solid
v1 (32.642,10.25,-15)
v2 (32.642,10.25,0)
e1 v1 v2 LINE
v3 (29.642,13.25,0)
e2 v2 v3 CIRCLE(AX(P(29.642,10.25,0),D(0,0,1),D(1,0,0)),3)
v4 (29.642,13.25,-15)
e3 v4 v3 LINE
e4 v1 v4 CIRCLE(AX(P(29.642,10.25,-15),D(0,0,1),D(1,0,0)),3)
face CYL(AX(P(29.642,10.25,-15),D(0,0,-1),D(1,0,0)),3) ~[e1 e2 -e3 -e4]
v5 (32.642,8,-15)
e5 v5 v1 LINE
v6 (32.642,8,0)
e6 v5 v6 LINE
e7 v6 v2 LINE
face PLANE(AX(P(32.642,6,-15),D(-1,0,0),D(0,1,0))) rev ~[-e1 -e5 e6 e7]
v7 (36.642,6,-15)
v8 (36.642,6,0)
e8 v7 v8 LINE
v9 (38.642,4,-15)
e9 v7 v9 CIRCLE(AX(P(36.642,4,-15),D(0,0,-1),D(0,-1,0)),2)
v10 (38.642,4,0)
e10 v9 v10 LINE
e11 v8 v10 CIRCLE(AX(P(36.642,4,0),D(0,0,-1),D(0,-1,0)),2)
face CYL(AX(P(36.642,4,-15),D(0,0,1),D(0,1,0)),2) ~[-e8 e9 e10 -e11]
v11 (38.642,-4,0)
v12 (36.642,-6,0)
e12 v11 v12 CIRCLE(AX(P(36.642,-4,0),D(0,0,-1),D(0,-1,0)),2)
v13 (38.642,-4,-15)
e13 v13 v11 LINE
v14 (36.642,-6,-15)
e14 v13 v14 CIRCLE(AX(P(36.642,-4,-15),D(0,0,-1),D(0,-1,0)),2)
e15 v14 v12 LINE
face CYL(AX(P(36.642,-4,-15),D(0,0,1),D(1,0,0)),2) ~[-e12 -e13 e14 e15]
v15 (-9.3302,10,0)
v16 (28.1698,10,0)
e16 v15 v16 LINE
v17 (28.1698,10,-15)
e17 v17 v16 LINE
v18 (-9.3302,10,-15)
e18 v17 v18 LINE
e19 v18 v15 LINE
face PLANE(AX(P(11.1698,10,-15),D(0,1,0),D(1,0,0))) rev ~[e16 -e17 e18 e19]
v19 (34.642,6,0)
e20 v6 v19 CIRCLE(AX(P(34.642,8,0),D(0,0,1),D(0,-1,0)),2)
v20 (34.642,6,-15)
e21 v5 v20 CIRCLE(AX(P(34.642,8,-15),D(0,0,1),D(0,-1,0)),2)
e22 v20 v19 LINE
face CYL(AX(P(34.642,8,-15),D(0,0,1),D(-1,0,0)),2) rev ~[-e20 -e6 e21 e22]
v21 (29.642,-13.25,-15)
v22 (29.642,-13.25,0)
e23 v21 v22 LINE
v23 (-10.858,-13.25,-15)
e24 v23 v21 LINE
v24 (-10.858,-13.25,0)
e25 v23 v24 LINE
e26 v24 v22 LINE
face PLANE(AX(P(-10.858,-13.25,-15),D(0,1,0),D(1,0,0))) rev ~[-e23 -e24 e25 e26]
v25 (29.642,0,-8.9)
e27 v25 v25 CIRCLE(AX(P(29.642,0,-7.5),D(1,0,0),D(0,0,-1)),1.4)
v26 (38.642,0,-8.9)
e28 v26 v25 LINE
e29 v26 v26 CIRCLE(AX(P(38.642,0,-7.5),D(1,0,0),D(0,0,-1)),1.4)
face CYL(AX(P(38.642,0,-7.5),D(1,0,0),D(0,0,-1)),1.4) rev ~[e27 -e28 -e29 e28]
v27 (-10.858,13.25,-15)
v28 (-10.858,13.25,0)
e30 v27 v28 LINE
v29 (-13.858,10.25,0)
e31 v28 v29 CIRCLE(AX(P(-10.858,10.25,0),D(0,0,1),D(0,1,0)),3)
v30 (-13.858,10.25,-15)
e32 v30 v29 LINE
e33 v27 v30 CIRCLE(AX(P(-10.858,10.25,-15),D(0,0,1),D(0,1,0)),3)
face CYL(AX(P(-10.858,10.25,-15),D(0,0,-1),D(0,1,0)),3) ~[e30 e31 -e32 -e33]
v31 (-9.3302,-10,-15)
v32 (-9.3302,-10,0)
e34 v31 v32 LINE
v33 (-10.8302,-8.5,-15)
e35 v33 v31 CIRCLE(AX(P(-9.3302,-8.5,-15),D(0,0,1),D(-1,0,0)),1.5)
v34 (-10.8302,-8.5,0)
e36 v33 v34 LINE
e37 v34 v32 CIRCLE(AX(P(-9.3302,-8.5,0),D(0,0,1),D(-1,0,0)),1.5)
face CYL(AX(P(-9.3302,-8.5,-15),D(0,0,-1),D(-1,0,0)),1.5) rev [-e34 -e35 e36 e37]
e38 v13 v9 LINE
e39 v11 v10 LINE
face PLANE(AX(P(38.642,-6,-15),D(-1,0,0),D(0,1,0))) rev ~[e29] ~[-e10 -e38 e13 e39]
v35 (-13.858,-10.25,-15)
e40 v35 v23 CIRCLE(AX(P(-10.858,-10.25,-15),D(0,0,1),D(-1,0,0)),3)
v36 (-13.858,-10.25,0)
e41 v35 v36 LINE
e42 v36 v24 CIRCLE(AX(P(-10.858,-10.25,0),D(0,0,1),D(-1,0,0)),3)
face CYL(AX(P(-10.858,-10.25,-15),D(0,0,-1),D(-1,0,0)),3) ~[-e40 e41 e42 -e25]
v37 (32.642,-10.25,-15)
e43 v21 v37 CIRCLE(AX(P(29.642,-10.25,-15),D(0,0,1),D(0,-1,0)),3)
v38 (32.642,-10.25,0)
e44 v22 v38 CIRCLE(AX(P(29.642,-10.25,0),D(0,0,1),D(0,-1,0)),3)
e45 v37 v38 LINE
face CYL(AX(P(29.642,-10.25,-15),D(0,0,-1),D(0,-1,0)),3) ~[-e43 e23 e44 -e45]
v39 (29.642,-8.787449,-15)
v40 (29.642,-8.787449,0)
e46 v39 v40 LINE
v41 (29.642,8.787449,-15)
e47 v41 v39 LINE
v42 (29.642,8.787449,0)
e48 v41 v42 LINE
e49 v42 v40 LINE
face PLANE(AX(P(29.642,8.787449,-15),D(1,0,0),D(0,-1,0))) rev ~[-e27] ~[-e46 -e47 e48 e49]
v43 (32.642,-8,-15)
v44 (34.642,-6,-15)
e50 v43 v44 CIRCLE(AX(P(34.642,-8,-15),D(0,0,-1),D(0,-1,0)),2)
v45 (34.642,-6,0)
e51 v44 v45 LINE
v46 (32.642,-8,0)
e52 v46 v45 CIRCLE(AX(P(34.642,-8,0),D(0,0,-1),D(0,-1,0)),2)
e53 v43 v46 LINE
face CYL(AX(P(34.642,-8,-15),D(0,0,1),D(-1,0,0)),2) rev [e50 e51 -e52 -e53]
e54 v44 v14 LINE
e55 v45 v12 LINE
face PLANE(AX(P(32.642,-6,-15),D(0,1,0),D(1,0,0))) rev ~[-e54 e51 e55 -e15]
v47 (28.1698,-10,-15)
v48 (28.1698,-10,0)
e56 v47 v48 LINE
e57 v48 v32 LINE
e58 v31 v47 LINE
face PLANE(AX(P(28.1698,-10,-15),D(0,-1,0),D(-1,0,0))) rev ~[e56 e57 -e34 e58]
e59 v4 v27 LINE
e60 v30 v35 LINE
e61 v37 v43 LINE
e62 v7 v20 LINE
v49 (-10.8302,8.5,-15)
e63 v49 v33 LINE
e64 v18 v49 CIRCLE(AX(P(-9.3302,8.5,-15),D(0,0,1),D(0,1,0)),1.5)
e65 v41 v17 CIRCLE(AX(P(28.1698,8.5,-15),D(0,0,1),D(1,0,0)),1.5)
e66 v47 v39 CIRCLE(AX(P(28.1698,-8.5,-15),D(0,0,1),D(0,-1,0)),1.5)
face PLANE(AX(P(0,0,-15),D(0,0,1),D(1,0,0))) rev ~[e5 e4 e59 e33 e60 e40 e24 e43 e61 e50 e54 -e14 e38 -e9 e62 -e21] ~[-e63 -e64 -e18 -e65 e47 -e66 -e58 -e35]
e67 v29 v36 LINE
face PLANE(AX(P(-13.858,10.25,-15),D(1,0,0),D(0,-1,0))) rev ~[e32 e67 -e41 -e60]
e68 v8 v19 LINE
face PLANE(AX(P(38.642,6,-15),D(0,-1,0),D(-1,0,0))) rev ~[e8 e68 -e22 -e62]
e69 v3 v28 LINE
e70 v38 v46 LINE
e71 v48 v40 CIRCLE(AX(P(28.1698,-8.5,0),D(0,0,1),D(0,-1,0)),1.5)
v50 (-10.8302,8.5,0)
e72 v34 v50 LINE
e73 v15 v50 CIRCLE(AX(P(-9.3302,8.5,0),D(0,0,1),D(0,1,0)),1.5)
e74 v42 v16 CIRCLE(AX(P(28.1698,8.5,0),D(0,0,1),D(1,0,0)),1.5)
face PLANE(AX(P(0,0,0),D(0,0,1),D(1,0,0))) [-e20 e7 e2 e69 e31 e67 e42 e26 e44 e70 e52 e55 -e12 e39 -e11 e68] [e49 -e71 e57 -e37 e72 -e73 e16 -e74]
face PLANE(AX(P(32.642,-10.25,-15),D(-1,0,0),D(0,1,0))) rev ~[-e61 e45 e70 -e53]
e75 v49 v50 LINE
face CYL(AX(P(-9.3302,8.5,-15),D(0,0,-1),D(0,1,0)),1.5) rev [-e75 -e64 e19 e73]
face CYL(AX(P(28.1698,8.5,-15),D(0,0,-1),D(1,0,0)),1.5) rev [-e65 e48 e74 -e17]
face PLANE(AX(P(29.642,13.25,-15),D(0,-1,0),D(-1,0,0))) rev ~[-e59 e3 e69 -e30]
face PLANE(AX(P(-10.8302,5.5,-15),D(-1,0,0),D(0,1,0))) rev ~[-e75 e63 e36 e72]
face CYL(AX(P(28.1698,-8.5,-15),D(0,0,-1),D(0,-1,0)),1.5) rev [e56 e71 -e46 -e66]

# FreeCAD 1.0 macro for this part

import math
import FreeCAD as App
import Part
import Sketcher
Q = App.Units.Quantity


def edges_at(feature, points):
    """Names of the edges that pass closest to the given points."""
    edges = feature.Shape.Edges
    near = lambda p: min(range(len(edges)), key=lambda i: edges[i].distToShape(Part.Vertex(*p))[0])
    return sorted({f"Edge{near(p) + 1}" for p in points})

doc = App.newDocument("Part")
body = doc.addObject("PartDesign::Body", "Body")

# Sketch on XY plane
sketch1 = body.newObject("Sketcher::SketchObject", "Sketch")
sketch1.AttachmentSupport = (doc.getObject("XY_Plane"), [""])
sketch1.MapMode = "FlatFace"
sketch1.AttachmentOffset = App.Placement(App.Vector(0, 0, -15), App.Rotation())
sketch1.addGeometry([
    Part.ArcOfCircle(Part.Circle(App.Vector(29.6, -10.2, 0), App.Vector(0, 0, 1), 3), math.radians(-90), math.radians(0)),  # 0
    Part.LineSegment(App.Vector(32.6, -10.2, 0), App.Vector(32.6, -6, 0)),  # 1
    Part.LineSegment(App.Vector(32.6, -6, 0), App.Vector(38.6, -6, 0)),  # 2
    Part.LineSegment(App.Vector(38.6, -6, 0), App.Vector(38.6, 6, 0)),  # 3
    Part.LineSegment(App.Vector(38.6, 6, 0), App.Vector(32.6, 6, 0)),  # 4
    Part.LineSegment(App.Vector(32.6, 6, 0), App.Vector(32.6, 10.2, 0)),  # 5
    Part.ArcOfCircle(Part.Circle(App.Vector(29.6, 10.2, 0), App.Vector(0, 0, 1), 3), math.radians(0), math.radians(90)),  # 6
    Part.LineSegment(App.Vector(29.6, 13.2, 0), App.Vector(-10.9, 13.2, 0)),  # 7
    Part.ArcOfCircle(Part.Circle(App.Vector(-10.9, 10.2, 0), App.Vector(0, 0, 1), 3), math.radians(90), math.radians(180)),  # 8
    Part.LineSegment(App.Vector(-13.9, 10.2, 0), App.Vector(-13.9, -10.2, 0)),  # 9
    Part.ArcOfCircle(Part.Circle(App.Vector(-10.9, -10.2, 0), App.Vector(0, 0, 1), 3), math.radians(180), math.radians(270)),  # 10
    Part.LineSegment(App.Vector(-10.9, -13.2, 0), App.Vector(29.6, -13.2, 0)),  # 11
    Part.LineSegment(App.Vector(29.6, 8.8, 0), App.Vector(29.6, -8.8, 0)),  # 12
    Part.ArcOfCircle(Part.Circle(App.Vector(28.2, -8.5, 0), App.Vector(0, 0, 1), 1.5), math.radians(-90), math.radians(-11)),  # 13
    Part.LineSegment(App.Vector(28.2, -10, 0), App.Vector(-9.3, -10, 0)),  # 14
    Part.ArcOfCircle(Part.Circle(App.Vector(-9.3, -8.5, 0), App.Vector(0, 0, 1), 1.5), math.radians(180), math.radians(270)),  # 15
    Part.LineSegment(App.Vector(-10.8, -8.5, 0), App.Vector(-10.8, 8.5, 0)),  # 16
    Part.ArcOfCircle(Part.Circle(App.Vector(-9.3, 8.5, 0), App.Vector(0, 0, 1), 1.5), math.radians(90), math.radians(180)),  # 17
    Part.LineSegment(App.Vector(-9.3, 10, 0), App.Vector(28.2, 10, 0)),  # 18
    Part.ArcOfCircle(Part.Circle(App.Vector(28.2, 8.5, 0), App.Vector(0, 0, 1), 1.5), math.radians(11), math.radians(90)),  # 19
], False)
sketch1.addConstraint([
    Sketcher.Constraint("Tangent", 0, 2, 1, 1),
    Sketcher.Constraint("Coincident", 1, 2, 2, 1),
    Sketcher.Constraint("Coincident", 2, 2, 3, 1),
    Sketcher.Constraint("Coincident", 3, 2, 4, 1),
    Sketcher.Constraint("Coincident", 4, 2, 5, 1),
    Sketcher.Constraint("Tangent", 5, 2, 6, 1),
    Sketcher.Constraint("Tangent", 6, 2, 7, 1),
    Sketcher.Constraint("Tangent", 7, 2, 8, 1),
    Sketcher.Constraint("Tangent", 8, 2, 9, 1),
    Sketcher.Constraint("Tangent", 9, 2, 10, 1),
    Sketcher.Constraint("Tangent", 10, 2, 11, 1),
    Sketcher.Constraint("Tangent", 11, 2, 0, 1),
    Sketcher.Constraint("Coincident", 12, 2, 13, 2),
    Sketcher.Constraint("Tangent", 13, 1, 14, 1),
    Sketcher.Constraint("Tangent", 14, 2, 15, 2),
    Sketcher.Constraint("Tangent", 15, 1, 16, 1),
    Sketcher.Constraint("Tangent", 16, 2, 17, 2),
    Sketcher.Constraint("Tangent", 17, 1, 18, 1),
    Sketcher.Constraint("Tangent", 18, 2, 19, 2),
    Sketcher.Constraint("Coincident", 19, 1, 12, 1),
    Sketcher.Constraint("Vertical", 1),
    Sketcher.Constraint("Horizontal", 2),
    Sketcher.Constraint("Vertical", 3),
    Sketcher.Constraint("Horizontal", 4),
    Sketcher.Constraint("Vertical", 5),
    Sketcher.Constraint("Horizontal", 7),
    Sketcher.Constraint("Vertical", 9),
    Sketcher.Constraint("Horizontal", 11),
    Sketcher.Constraint("Vertical", 12),
    Sketcher.Constraint("Horizontal", 14),
    Sketcher.Constraint("Vertical", 16),
    Sketcher.Constraint("Horizontal", 18),
    Sketcher.Constraint("Equal", 0, 6),
    Sketcher.Constraint("Equal", 6, 8),
    Sketcher.Constraint("Equal", 8, 10),
    Sketcher.Constraint("Equal", 13, 15),
    Sketcher.Constraint("Equal", 15, 17),
    Sketcher.Constraint("Equal", 17, 19),
    Sketcher.Constraint("Symmetric", 0, 3, 6, 3, -1),
    Sketcher.Constraint("Symmetric", 13, 3, 19, 3, -1),
    Sketcher.Constraint("Vertical", 11, 2, 12, 2),
    Sketcher.Constraint("Equal", 1, 5),
    Sketcher.Constraint("Radius", 0, Q("3 mm")),
    Sketcher.Constraint("Radius", 13, Q("1.5 mm")),
    Sketcher.Constraint("DistanceX", 2, 1, 2, 2, Q("6 mm")),
    Sketcher.Constraint("DistanceY", 3, 1, 3, 2, Q("12 mm")),
    Sketcher.Constraint("DistanceY", 9, 2, 9, 1, Q("20.5 mm")),
    Sketcher.Constraint("DistanceY", 16, 1, 16, 2, Q("17 mm")),
    Sketcher.Constraint("DistanceX", 7, 2, 7, 1, Q("40.5 mm")),
    Sketcher.Constraint("DistanceX", 14, 2, 14, 1, Q("37.5 mm")),
    Sketcher.Constraint("DistanceY", 12, 2, 12, 1, Q("17.575 mm")),
    Sketcher.Constraint("DistanceX", -1, 1, 0, 3, Q("29.642 mm")),
])
pad1 = body.newObject("PartDesign::Pad", "Pad")
pad1.Profile = sketch1
pad1.Length = 15
doc.recompute()

fillet = body.newObject("PartDesign::Fillet", "Fillet")
fillet.Base = (pad1, edges_at(pad1, [
    (32.642, 6, -7.5),
    (38.642, 6, -7.5),
    (38.642, -6, -7.5),
    (32.642, -6, -7.5),
]))
fillet.Radius = 2

# Sketch on YZ plane
sketch2 = body.newObject("Sketcher::SketchObject", "Sketch001")
sketch2.AttachmentSupport = (doc.getObject("YZ_Plane"), [""])
sketch2.MapMode = "FlatFace"
sketch2.AttachmentOffset = App.Placement(App.Vector(0, 0, 38.642), App.Rotation())
sketch2.addGeometry(Part.Circle(App.Vector(0, -7.5, 0), App.Vector(0, 0, 1), 1.4), False)
sketch2.addConstraint([
    Sketcher.Constraint("PointOnObject", 0, 3, -2),
    Sketcher.Constraint("Diameter", 0, Q("2.8 mm")),
    Sketcher.Constraint("DistanceY", 0, 3, -1, 1, Q("7.5 mm")),
])
pocket1 = body.newObject("PartDesign::Pocket", "Pocket")
pocket1.Profile = sketch2
pocket1.Length = 15

doc.recompute()
